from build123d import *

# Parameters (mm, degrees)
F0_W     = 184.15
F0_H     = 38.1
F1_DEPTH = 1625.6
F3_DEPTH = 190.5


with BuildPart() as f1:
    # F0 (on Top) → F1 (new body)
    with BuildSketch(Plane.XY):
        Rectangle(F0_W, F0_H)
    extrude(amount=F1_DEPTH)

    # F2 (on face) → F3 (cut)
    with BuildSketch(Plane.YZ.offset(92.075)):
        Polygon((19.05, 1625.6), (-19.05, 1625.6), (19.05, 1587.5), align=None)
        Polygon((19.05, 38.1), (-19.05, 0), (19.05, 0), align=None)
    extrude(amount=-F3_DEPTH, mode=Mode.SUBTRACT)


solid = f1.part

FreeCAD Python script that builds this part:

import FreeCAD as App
import Part
import Sketcher
Q = App.Units.Quantity


def add_polygon(sketch, points):
    """Adds a closed chain of lines whose ends are joined by coincident constraints."""
    first, n = sketch.GeometryCount, len(points)
    for a, b in zip(points, points[1:] + points[:1]):
        sketch.addGeometry(Part.LineSegment(App.Vector(*a, 0), App.Vector(*b, 0)), False)
    for i in range(n):
        sketch.addConstraint(Sketcher.Constraint("Coincident", first + i, 2, first + (i + 1) % n, 1))

doc = App.newDocument("Part")
body = doc.addObject("PartDesign::Body", "Body")

# Sketch on XY plane
sketch1 = body.newObject("Sketcher::SketchObject", "Sketch")
sketch1.AttachmentSupport = (doc.getObject("XY_Plane"), [""])
sketch1.MapMode = "FlatFace"
add_polygon(sketch1, [(-92, 19), (-92, -19), (92, -19), (92, 19)])  # lines 0-3
sketch1.addConstraint([
    Sketcher.Constraint("Vertical", 0),
    Sketcher.Constraint("Horizontal", 1),
    Sketcher.Constraint("Vertical", 2),
    Sketcher.Constraint("Horizontal", 3),
    Sketcher.Constraint("Symmetric", 0, 2, 2, 2, -1, 1),
    Sketcher.Constraint("DistanceY", 0, 2, 0, 1, Q("1.5 in")),
    Sketcher.Constraint("DistanceX", 1, 1, 1, 2, Q("7.25 in")),
])
pad1 = body.newObject("PartDesign::Pad", "Pad")
pad1.Profile = sketch1
pad1.Length = Q("64 in")

# Sketch on YZ plane
sketch2 = body.newObject("Sketcher::SketchObject", "Sketch001")
sketch2.AttachmentSupport = (doc.getObject("YZ_Plane"), [""])
sketch2.MapMode = "FlatFace"
sketch2.AttachmentOffset = App.Placement(App.Vector(0, 0, 3.625 * 25.4), App.Rotation())
add_polygon(sketch2, [(19, 1626), (-19, 1626), (19, 1588)])  # lines 0-2
add_polygon(sketch2, [(19, 38), (-19, 0), (19, 0)])  # lines 3-5
sketch2.addConstraint([
    Sketcher.Constraint("Horizontal", 0),
    Sketcher.Constraint("Vertical", 2),
    Sketcher.Constraint("Horizontal", 4),
    Sketcher.Constraint("Vertical", 5),
    Sketcher.Constraint("Symmetric", 3, 2, 4, 2, -1, 1),
    Sketcher.Constraint("Perpendicular", 1, 3),
    Sketcher.Constraint("Vertical", 0, 2, 3, 2),
    Sketcher.Constraint("Vertical", 2, 2, 4, 2),
    Sketcher.Constraint("Equal", 4, 2),
    Sketcher.Constraint("DistanceX", 0, 2, 0, 1, Q("1.5 in")),
    Sketcher.Constraint("DistanceY", -1, 1, 0, 2, Q("64 in")),
])
pocket1 = body.newObject("PartDesign::Pocket", "Pocket")
pocket1.Profile = sketch2
pocket1.Length = Q("7.5 in")

doc.recompute()
